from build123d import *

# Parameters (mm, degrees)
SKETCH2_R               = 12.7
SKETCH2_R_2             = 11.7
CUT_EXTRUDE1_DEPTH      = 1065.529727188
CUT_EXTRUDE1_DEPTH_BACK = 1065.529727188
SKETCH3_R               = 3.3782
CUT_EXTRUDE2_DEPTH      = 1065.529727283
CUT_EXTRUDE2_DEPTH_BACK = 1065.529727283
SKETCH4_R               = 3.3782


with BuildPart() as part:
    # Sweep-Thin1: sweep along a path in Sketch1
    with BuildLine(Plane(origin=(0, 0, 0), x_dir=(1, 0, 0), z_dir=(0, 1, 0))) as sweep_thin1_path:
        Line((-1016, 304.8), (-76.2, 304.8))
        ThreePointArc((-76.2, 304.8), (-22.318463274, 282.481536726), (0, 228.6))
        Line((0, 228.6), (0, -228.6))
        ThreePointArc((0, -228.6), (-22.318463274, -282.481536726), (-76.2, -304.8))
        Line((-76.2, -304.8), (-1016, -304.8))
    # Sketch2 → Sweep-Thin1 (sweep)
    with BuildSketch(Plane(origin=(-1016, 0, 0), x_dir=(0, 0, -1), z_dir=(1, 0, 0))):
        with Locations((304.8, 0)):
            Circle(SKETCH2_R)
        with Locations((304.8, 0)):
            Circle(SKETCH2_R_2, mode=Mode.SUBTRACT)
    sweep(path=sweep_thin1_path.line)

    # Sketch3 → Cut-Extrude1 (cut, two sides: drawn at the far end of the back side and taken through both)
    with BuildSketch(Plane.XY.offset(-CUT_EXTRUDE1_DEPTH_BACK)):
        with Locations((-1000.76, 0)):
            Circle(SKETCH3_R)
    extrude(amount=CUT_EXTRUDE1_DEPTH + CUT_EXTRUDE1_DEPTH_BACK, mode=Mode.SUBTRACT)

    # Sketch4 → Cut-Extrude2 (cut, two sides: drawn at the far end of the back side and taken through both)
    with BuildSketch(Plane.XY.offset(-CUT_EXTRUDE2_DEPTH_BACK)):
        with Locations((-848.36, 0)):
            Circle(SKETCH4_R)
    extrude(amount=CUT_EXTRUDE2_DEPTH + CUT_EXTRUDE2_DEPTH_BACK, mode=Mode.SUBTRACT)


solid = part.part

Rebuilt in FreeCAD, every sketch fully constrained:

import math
import FreeCAD as App
import Part
import Sketcher
Q = App.Units.Quantity

doc = App.newDocument("Part")
body = doc.addObject("PartDesign::Body", "Body")

# Sketch on YZ plane
sketch1 = body.newObject("Sketcher::SketchObject", "Sketch")
sketch1.AttachmentSupport = (doc.getObject("YZ_Plane"), [""])
sketch1.MapMode = "FlatFace"
sketch1.AttachmentOffset = App.Placement(App.Vector(0, 0, -40 * 25.4), App.Rotation())
sketch1.addGeometry(Part.Circle(App.Vector(0, -305, 0), App.Vector(0, 0, 1), 13), False)
sketch1.addGeometry(Part.Circle(App.Vector(0, -305, 0), App.Vector(0, 0, 1), 12), False)
sketch1.addConstraint(Sketcher.Constraint("Coincident", 1, 3, 0, 3))
sketch1.addConstraint(Sketcher.Constraint("PointOnObject", 0, 3, -2))
sketch1.addConstraint(Sketcher.Constraint("Diameter", 0, Q("1 in")))
sketch1.addConstraint(Sketcher.Constraint("DistanceY", 0, 3, -1, 1, Q("12 in")))
sketch1.addConstraint(Sketcher.Constraint("Diameter", 1, Q("23.4 mm")))

# Sketch on XZ plane
sketch2 = body.newObject("Sketcher::SketchObject", "Sketch001")
sketch2.AttachmentSupport = (doc.getObject("XZ_Plane"), [""])
sketch2.MapMode = "FlatFace"
sketch2.addGeometry(Part.LineSegment(App.Vector(-1016, -305, 0), App.Vector(-76, -305, 0)), False)
sketch2.addGeometry(Part.ArcOfCircle(Part.Circle(App.Vector(-76, -229, 0), App.Vector(0, 0, 1), 76), math.radians(-90), math.radians(0)), False)
sketch2.addGeometry(Part.LineSegment(App.Vector(0, -229, 0), App.Vector(0, 229, 0)), False)
sketch2.addGeometry(Part.ArcOfCircle(Part.Circle(App.Vector(-76, 229, 0), App.Vector(0, 0, 1), 76), math.radians(0), math.radians(90)), False)
sketch2.addGeometry(Part.LineSegment(App.Vector(-76, 305, 0), App.Vector(-1016, 305, 0)), False)
sketch2.addConstraint(Sketcher.Constraint("Tangent", 0, 2, 1, 1))
sketch2.addConstraint(Sketcher.Constraint("Tangent", 1, 2, 2, 1))
sketch2.addConstraint(Sketcher.Constraint("Tangent", 2, 2, 3, 1))
sketch2.addConstraint(Sketcher.Constraint("Tangent", 3, 2, 4, 1))
sketch2.addConstraint(Sketcher.Constraint("Horizontal", 0))
sketch2.addConstraint(Sketcher.Constraint("Vertical", 2))
sketch2.addConstraint(Sketcher.Constraint("Horizontal", 4))
sketch2.addConstraint(Sketcher.Constraint("Equal", 1, 3))
sketch2.addConstraint(Sketcher.Constraint("Symmetric", 1, 2, 2, 2, -1, 1))
sketch2.addConstraint(Sketcher.Constraint("Vertical", 0, 1, 4, 2))
sketch2.addConstraint(Sketcher.Constraint("Radius", 1, Q("3 in")))
sketch2.addConstraint(Sketcher.Constraint("DistanceX", 0, 1, 0, 2, Q("37 in")))
sketch2.addConstraint(Sketcher.Constraint("DistanceY", 2, 1, 2, 2, Q("18 in")))
doc.recompute()

additivepipe = body.newObject("PartDesign::AdditivePipe", "AdditivePipe")
additivepipe.Profile = sketch1
additivepipe.Spine = (sketch2, ["Edge1", "Edge2", "Edge3", "Edge4", "Edge5"])

# Sketch on XY plane
sketch3 = body.newObject("Sketcher::SketchObject", "Sketch002")
sketch3.AttachmentSupport = (doc.getObject("XY_Plane"), [""])
sketch3.MapMode = "FlatFace"
sketch3.addGeometry(Part.Circle(App.Vector(-1000.8, 0, 0), App.Vector(0, 0, 1), 3.4), False)
sketch3.addConstraint(Sketcher.Constraint("PointOnObject", 0, 3, -1))
sketch3.addConstraint(Sketcher.Constraint("Diameter", 0, Q("0.266 in")))
sketch3.addConstraint(Sketcher.Constraint("DistanceX", 0, 3, -1, 1, Q("39.4 in")))
pocket1 = body.newObject("PartDesign::Pocket", "Pocket")
pocket1.Profile = sketch3
pocket1.Type = "ThroughAll"
pocket1.Midplane = True

# Sketch on XY plane
sketch4 = body.newObject("Sketcher::SketchObject", "Sketch003")
sketch4.AttachmentSupport = (doc.getObject("XY_Plane"), [""])
sketch4.MapMode = "FlatFace"
sketch4.addGeometry(Part.Circle(App.Vector(-848.4, 0, 0), App.Vector(0, 0, 1), 3.4), False)
sketch4.addConstraint(Sketcher.Constraint("PointOnObject", 0, 3, -1))
sketch4.addConstraint(Sketcher.Constraint("Diameter", 0, Q("0.266 in")))
sketch4.addConstraint(Sketcher.Constraint("DistanceX", 0, 3, -1, 1, Q("33.4 in")))
pocket2 = body.newObject("PartDesign::Pocket", "Pocket001")
pocket2.Profile = sketch4
pocket2.Type = "ThroughAll"
pocket2.Midplane = True

doc.recompute()
